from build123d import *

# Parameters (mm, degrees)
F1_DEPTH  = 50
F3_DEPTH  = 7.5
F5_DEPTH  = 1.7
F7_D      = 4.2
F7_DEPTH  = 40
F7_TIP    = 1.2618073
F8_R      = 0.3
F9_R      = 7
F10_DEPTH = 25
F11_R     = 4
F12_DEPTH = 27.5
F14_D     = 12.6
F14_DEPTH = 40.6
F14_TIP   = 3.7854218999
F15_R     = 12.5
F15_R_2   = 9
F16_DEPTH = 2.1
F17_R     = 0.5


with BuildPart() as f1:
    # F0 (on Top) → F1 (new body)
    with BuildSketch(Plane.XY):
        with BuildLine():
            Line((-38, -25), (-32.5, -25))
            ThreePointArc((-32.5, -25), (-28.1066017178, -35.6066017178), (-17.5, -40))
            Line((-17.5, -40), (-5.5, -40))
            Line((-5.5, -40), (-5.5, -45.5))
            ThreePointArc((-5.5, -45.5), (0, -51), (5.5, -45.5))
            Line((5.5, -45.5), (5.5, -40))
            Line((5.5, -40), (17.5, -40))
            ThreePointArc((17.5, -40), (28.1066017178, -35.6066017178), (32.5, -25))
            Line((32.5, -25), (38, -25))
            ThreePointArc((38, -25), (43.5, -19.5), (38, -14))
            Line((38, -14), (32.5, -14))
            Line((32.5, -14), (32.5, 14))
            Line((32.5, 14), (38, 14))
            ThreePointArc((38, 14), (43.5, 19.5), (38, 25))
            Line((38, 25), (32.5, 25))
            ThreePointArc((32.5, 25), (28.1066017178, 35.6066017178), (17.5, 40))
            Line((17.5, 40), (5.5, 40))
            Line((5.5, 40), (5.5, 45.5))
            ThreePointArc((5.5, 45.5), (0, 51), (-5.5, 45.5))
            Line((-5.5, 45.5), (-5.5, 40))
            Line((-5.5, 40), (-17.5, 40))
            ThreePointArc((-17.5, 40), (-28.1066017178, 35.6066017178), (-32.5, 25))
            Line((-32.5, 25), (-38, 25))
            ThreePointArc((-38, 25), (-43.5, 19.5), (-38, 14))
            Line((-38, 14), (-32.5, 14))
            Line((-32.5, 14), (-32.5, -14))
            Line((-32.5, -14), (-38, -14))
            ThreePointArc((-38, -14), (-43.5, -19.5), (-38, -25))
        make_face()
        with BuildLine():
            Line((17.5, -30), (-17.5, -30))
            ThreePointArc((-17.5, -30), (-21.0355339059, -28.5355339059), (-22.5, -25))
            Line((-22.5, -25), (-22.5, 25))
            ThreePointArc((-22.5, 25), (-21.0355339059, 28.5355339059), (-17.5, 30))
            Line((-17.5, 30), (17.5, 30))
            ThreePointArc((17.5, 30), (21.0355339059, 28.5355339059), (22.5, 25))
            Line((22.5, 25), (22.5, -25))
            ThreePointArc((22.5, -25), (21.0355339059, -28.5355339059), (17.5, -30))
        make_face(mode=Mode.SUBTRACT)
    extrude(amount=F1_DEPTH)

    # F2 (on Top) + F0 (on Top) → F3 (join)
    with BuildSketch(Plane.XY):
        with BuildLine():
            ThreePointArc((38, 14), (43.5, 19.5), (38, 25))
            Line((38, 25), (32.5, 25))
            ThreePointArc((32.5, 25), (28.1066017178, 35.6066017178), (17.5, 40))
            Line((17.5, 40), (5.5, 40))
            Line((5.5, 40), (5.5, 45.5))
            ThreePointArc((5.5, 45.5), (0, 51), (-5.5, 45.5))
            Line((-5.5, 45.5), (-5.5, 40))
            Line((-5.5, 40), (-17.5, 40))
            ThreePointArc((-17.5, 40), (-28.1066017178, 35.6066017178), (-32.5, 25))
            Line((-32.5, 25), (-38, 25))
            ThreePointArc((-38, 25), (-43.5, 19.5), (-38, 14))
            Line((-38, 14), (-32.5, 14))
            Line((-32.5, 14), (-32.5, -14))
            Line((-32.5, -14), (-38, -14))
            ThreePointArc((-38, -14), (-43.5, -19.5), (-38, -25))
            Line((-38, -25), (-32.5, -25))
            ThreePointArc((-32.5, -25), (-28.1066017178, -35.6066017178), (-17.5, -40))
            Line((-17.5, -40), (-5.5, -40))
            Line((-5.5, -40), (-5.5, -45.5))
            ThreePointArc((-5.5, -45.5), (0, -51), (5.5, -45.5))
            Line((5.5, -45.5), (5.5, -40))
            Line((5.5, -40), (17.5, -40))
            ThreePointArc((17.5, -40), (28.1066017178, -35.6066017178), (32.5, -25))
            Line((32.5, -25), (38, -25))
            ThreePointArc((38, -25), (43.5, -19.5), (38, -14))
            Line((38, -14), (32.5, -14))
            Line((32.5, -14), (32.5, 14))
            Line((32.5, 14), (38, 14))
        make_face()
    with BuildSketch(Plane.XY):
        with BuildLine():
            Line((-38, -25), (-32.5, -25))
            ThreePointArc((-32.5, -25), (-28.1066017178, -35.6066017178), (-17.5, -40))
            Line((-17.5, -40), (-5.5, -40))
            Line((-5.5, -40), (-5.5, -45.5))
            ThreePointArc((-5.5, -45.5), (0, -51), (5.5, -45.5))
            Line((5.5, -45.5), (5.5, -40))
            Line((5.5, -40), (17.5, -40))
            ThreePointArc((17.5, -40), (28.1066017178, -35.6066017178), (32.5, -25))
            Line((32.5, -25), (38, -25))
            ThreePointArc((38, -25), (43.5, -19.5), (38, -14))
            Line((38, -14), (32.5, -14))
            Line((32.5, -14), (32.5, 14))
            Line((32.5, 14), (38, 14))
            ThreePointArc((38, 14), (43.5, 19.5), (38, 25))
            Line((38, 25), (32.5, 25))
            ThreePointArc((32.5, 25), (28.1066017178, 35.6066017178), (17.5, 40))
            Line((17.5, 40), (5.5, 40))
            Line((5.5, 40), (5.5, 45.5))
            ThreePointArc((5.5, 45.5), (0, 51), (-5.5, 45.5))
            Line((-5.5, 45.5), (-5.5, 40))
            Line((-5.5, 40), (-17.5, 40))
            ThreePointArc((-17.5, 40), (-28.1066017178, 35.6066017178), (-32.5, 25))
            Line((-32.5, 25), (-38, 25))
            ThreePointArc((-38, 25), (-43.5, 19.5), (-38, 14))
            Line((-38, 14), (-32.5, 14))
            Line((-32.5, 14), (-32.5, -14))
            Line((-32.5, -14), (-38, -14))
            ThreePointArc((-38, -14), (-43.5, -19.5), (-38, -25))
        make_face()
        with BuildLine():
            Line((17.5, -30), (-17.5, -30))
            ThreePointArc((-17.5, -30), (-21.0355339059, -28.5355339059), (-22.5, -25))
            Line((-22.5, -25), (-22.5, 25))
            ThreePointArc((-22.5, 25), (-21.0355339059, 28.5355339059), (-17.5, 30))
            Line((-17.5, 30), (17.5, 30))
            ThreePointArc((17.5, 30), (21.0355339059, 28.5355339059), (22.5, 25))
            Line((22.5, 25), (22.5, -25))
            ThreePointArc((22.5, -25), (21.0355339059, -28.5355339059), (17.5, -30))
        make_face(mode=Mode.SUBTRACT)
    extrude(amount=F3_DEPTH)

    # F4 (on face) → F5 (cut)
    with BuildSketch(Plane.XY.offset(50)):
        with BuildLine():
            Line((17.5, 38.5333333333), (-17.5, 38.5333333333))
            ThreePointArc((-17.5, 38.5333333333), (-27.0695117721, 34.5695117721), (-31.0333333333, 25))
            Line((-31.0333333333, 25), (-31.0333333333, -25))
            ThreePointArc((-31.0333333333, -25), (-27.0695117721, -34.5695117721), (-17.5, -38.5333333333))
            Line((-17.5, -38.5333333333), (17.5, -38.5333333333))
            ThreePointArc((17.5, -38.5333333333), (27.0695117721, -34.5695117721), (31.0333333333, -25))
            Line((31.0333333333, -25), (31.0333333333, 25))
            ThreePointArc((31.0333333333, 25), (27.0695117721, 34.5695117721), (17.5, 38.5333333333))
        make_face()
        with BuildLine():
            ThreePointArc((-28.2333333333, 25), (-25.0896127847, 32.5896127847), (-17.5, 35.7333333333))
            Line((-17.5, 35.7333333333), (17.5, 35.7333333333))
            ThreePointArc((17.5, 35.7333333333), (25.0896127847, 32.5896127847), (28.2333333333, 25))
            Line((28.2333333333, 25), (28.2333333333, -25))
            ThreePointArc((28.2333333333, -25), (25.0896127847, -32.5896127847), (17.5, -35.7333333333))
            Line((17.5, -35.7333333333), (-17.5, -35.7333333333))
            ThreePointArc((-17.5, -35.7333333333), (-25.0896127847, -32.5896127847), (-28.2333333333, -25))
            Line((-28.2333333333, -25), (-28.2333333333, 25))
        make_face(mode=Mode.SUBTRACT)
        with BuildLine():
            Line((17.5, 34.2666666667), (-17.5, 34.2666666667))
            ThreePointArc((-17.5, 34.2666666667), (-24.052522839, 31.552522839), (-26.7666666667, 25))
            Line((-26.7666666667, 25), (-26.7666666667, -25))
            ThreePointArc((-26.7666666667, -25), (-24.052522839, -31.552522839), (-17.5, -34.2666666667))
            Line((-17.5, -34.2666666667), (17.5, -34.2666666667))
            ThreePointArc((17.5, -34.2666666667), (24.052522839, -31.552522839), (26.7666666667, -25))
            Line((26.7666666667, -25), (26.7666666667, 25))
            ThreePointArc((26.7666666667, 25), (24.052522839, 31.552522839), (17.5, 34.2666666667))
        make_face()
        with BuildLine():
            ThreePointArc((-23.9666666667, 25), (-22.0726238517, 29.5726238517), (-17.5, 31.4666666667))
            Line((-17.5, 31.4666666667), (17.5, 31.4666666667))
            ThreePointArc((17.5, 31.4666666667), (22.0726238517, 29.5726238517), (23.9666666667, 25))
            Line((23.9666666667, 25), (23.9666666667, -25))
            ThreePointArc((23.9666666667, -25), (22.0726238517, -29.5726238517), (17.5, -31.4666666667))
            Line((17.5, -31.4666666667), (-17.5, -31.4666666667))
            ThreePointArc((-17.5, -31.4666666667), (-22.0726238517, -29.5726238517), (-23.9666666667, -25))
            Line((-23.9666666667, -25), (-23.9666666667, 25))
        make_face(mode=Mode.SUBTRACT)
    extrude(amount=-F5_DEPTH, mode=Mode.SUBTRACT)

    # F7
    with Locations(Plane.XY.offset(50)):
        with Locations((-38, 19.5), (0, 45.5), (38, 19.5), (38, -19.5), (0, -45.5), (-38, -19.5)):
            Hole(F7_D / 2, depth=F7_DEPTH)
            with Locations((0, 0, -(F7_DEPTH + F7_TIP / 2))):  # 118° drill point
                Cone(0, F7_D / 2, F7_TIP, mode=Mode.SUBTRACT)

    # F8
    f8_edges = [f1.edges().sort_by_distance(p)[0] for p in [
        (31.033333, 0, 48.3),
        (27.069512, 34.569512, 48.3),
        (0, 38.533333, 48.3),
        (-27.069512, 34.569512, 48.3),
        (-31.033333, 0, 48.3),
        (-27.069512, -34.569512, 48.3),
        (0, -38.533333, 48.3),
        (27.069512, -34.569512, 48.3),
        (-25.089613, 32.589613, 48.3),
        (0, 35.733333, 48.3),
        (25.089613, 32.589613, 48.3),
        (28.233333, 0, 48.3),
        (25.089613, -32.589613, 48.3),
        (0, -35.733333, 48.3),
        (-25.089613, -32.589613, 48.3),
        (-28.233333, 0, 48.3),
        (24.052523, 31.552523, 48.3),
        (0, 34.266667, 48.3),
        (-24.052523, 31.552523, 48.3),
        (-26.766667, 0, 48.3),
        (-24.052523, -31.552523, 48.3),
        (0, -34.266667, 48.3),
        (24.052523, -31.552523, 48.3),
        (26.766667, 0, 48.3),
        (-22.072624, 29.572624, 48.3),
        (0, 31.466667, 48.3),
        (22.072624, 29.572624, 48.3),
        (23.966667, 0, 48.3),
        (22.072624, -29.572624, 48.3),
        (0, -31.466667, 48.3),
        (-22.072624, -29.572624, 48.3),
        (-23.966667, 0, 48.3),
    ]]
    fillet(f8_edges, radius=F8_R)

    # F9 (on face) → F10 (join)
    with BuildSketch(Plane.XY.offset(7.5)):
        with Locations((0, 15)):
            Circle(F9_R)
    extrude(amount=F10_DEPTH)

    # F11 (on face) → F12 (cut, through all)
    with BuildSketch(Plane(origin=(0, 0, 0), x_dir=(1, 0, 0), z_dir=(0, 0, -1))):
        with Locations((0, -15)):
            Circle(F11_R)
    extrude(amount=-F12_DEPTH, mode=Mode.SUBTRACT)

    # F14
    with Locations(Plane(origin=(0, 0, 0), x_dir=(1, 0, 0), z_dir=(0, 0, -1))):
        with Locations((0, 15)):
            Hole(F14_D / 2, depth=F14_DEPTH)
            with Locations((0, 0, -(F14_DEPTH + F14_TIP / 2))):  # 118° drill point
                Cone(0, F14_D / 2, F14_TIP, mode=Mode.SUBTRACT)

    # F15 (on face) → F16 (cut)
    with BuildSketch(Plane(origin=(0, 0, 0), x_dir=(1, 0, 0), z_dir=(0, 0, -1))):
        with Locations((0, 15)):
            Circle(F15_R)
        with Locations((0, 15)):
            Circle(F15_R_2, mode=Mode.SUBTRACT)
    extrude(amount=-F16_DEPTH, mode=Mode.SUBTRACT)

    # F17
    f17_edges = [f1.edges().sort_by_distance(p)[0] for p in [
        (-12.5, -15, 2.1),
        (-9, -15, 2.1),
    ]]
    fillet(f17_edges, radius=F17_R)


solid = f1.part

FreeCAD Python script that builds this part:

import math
import FreeCAD as App
import Part
import Sketcher

V = App.Vector


def edges_at(feature, points):
    """Names of the edges that pass closest to the given points."""
    edges = feature.Shape.Edges
    near = lambda p: min(range(len(edges)), key=lambda i: edges[i].distToShape(Part.Vertex(*p))[0])
    return sorted({f"Edge{near(p) + 1}" for p in points})

doc = App.newDocument("Part")
body = doc.addObject("PartDesign::Body", "Body")

# Sketch on XY plane
sketch1 = body.newObject("Sketcher::SketchObject", "Sketch")
sketch1.AttachmentSupport = (doc.getObject("XY_Plane"), [""])
sketch1.MapMode = "FlatFace"
sketch1.addGeometry(Part.LineSegment(V(-38, -25, 0), V(-32, -25, 0)), False)
sketch1.addGeometry(Part.ArcOfCircle(Part.Circle(V(-18, -25, 0), V(0, 0, 1), 15), math.radians(180), math.radians(270)), False)
sketch1.addGeometry(Part.LineSegment(V(-18, -40, 0), V(-6, -40, 0)), False)
sketch1.addGeometry(Part.LineSegment(V(-6, -40, 0), V(-6, -46, 0)), False)
sketch1.addGeometry(Part.ArcOfCircle(Part.Circle(V(0, -46, 0), V(0, 0, 1), 6), math.radians(180), math.radians(360)), False)
sketch1.addGeometry(Part.LineSegment(V(6, -46, 0), V(6, -40, 0)), False)
sketch1.addGeometry(Part.LineSegment(V(6, -40, 0), V(18, -40, 0)), False)
sketch1.addGeometry(Part.ArcOfCircle(Part.Circle(V(18, -25, 0), V(0, 0, 1), 15), math.radians(-90), math.radians(0)), False)
sketch1.addGeometry(Part.LineSegment(V(32, -25, 0), V(38, -25, 0)), False)
sketch1.addGeometry(Part.ArcOfCircle(Part.Circle(V(38, -20, 0), V(0, 0, 1), 6), math.radians(-90), math.radians(90)), False)
sketch1.addGeometry(Part.LineSegment(V(38, -14, 0), V(32, -14, 0)), False)
sketch1.addGeometry(Part.LineSegment(V(32, -14, 0), V(32, 14, 0)), False)
sketch1.addGeometry(Part.LineSegment(V(32, 14, 0), V(38, 14, 0)), False)
sketch1.addGeometry(Part.ArcOfCircle(Part.Circle(V(38, 20, 0), V(0, 0, 1), 6), math.radians(-90), math.radians(90)), False)
sketch1.addGeometry(Part.LineSegment(V(38, 25, 0), V(32, 25, 0)), False)
sketch1.addGeometry(Part.ArcOfCircle(Part.Circle(V(18, 25, 0), V(0, 0, 1), 15), math.radians(0), math.radians(90)), False)
sketch1.addGeometry(Part.LineSegment(V(18, 40, 0), V(6, 40, 0)), False)
sketch1.addGeometry(Part.LineSegment(V(6, 40, 0), V(6, 46, 0)), False)
sketch1.addGeometry(Part.ArcOfCircle(Part.Circle(V(0, 46, 0), V(0, 0, 1), 6), math.radians(0), math.radians(180)), False)
sketch1.addGeometry(Part.LineSegment(V(-6, 46, 0), V(-6, 40, 0)), False)
sketch1.addGeometry(Part.LineSegment(V(-6, 40, 0), V(-18, 40, 0)), False)
sketch1.addGeometry(Part.ArcOfCircle(Part.Circle(V(-18, 25, 0), V(0, 0, 1), 15), math.radians(90), math.radians(180)), False)
sketch1.addGeometry(Part.LineSegment(V(-32, 25, 0), V(-38, 25, 0)), False)
sketch1.addGeometry(Part.ArcOfCircle(Part.Circle(V(-38, 20, 0), V(0, 0, 1), 6), math.radians(90), math.radians(270)), False)
sketch1.addGeometry(Part.LineSegment(V(-38, 14, 0), V(-32, 14, 0)), False)
sketch1.addGeometry(Part.LineSegment(V(-32, 14, 0), V(-32, -14, 0)), False)
sketch1.addGeometry(Part.LineSegment(V(-32, -14, 0), V(-38, -14, 0)), False)
sketch1.addGeometry(Part.ArcOfCircle(Part.Circle(V(-38, -20, 0), V(0, 0, 1), 6), math.radians(90), math.radians(270)), False)
sketch1.addGeometry(Part.ArcOfCircle(Part.Circle(V(18, -25, 0), V(0, 0, 1), 5), math.radians(-90), math.radians(0)), False)
sketch1.addGeometry(Part.LineSegment(V(18, -30, 0), V(-18, -30, 0)), False)
sketch1.addGeometry(Part.ArcOfCircle(Part.Circle(V(-18, -25, 0), V(0, 0, 1), 5), math.radians(180), math.radians(270)), False)
sketch1.addGeometry(Part.LineSegment(V(-22, -25, 0), V(-22, 25, 0)), False)
sketch1.addGeometry(Part.ArcOfCircle(Part.Circle(V(-18, 25, 0), V(0, 0, 1), 5), math.radians(90), math.radians(180)), False)
sketch1.addGeometry(Part.LineSegment(V(-18, 30, 0), V(18, 30, 0)), False)
sketch1.addGeometry(Part.ArcOfCircle(Part.Circle(V(18, 25, 0), V(0, 0, 1), 5), math.radians(0), math.radians(90)), False)
sketch1.addGeometry(Part.LineSegment(V(22, 25, 0), V(22, -25, 0)), False)
sketch1.addConstraint(Sketcher.Constraint("Coincident", 0, 2, 1, 1))
sketch1.addConstraint(Sketcher.Constraint("Tangent", 1, 2, 2, 1))
sketch1.addConstraint(Sketcher.Constraint("Coincident", 2, 2, 3, 1))
sketch1.addConstraint(Sketcher.Constraint("Tangent", 3, 2, 4, 1))
sketch1.addConstraint(Sketcher.Constraint("Tangent", 4, 2, 5, 1))
sketch1.addConstraint(Sketcher.Constraint("Coincident", 5, 2, 6, 1))
sketch1.addConstraint(Sketcher.Constraint("Tangent", 6, 2, 7, 1))
sketch1.addConstraint(Sketcher.Constraint("Coincident", 7, 2, 8, 1))
sketch1.addConstraint(Sketcher.Constraint("Tangent", 8, 2, 9, 1))
sketch1.addConstraint(Sketcher.Constraint("Tangent", 9, 2, 10, 1))
sketch1.addConstraint(Sketcher.Constraint("Coincident", 10, 2, 11, 1))
sketch1.addConstraint(Sketcher.Constraint("Coincident", 11, 2, 12, 1))
sketch1.addConstraint(Sketcher.Constraint("Tangent", 12, 2, 13, 1))
sketch1.addConstraint(Sketcher.Constraint("Tangent", 13, 2, 14, 1))
sketch1.addConstraint(Sketcher.Constraint("Coincident", 14, 2, 15, 1))
sketch1.addConstraint(Sketcher.Constraint("Tangent", 15, 2, 16, 1))
sketch1.addConstraint(Sketcher.Constraint("Coincident", 16, 2, 17, 1))
sketch1.addConstraint(Sketcher.Constraint("Tangent", 17, 2, 18, 1))
sketch1.addConstraint(Sketcher.Constraint("Tangent", 18, 2, 19, 1))
sketch1.addConstraint(Sketcher.Constraint("Coincident", 19, 2, 20, 1))
sketch1.addConstraint(Sketcher.Constraint("Tangent", 20, 2, 21, 1))
sketch1.addConstraint(Sketcher.Constraint("Coincident", 21, 2, 22, 1))
sketch1.addConstraint(Sketcher.Constraint("Tangent", 22, 2, 23, 1))
sketch1.addConstraint(Sketcher.Constraint("Tangent", 23, 2, 24, 1))
sketch1.addConstraint(Sketcher.Constraint("Coincident", 24, 2, 25, 1))
sketch1.addConstraint(Sketcher.Constraint("Coincident", 25, 2, 26, 1))
sketch1.addConstraint(Sketcher.Constraint("Tangent", 26, 2, 27, 1))
sketch1.addConstraint(Sketcher.Constraint("Tangent", 27, 2, 0, 1))
sketch1.addConstraint(Sketcher.Constraint("Tangent", 28, 1, 29, 1))
sketch1.addConstraint(Sketcher.Constraint("Tangent", 29, 2, 30, 2))
sketch1.addConstraint(Sketcher.Constraint("Tangent", 30, 1, 31, 1))
sketch1.addConstraint(Sketcher.Constraint("Tangent", 31, 2, 32, 2))
sketch1.addConstraint(Sketcher.Constraint("Tangent", 32, 1, 33, 1))
sketch1.addConstraint(Sketcher.Constraint("Tangent", 33, 2, 34, 2))
sketch1.addConstraint(Sketcher.Constraint("Tangent", 34, 1, 35, 1))
sketch1.addConstraint(Sketcher.Constraint("Tangent", 35, 2, 28, 2))
sketch1.addConstraint(Sketcher.Constraint("Horizontal", 0))
sketch1.addConstraint(Sketcher.Constraint("Horizontal", 2))
sketch1.addConstraint(Sketcher.Constraint("Vertical", 3))
sketch1.addConstraint(Sketcher.Constraint("Vertical", 5))
sketch1.addConstraint(Sketcher.Constraint("Horizontal", 6))
sketch1.addConstraint(Sketcher.Constraint("Horizontal", 8))
sketch1.addConstraint(Sketcher.Constraint("Horizontal", 10))
sketch1.addConstraint(Sketcher.Constraint("Vertical", 11))
sketch1.addConstraint(Sketcher.Constraint("Horizontal", 12))
sketch1.addConstraint(Sketcher.Constraint("Horizontal", 14))
sketch1.addConstraint(Sketcher.Constraint("Horizontal", 16))
sketch1.addConstraint(Sketcher.Constraint("Vertical", 17))
sketch1.addConstraint(Sketcher.Constraint("Vertical", 19))
sketch1.addConstraint(Sketcher.Constraint("Horizontal", 20))
sketch1.addConstraint(Sketcher.Constraint("Horizontal", 22))
sketch1.addConstraint(Sketcher.Constraint("Horizontal", 24))
sketch1.addConstraint(Sketcher.Constraint("Vertical", 25))
sketch1.addConstraint(Sketcher.Constraint("Horizontal", 26))
sketch1.addConstraint(Sketcher.Constraint("Horizontal", 29))
sketch1.addConstraint(Sketcher.Constraint("Vertical", 31))
sketch1.addConstraint(Sketcher.Constraint("Horizontal", 33))
sketch1.addConstraint(Sketcher.Constraint("Vertical", 35))
sketch1.addConstraint(Sketcher.Constraint("Coincident", 28, 3, 7, 3))
sketch1.addConstraint(Sketcher.Constraint("Coincident", 30, 3, 1, 3))
sketch1.addConstraint(Sketcher.Constraint("Coincident", 32, 3, 21, 3))
sketch1.addConstraint(Sketcher.Constraint("Coincident", 34, 3, 15, 3))
sketch1.addConstraint(Sketcher.Constraint("Equal", 1, 7))
sketch1.addConstraint(Sketcher.Constraint("Equal", 4, 9))
sketch1.addConstraint(Sketcher.Constraint("Equal", 9, 13))
sketch1.addConstraint(Sketcher.Constraint("Equal", 7, 15))
sketch1.addConstraint(Sketcher.Constraint("Equal", 13, 18))
sketch1.addConstraint(Sketcher.Constraint("Equal", 15, 21))
sketch1.addConstraint(Sketcher.Constraint("Equal", 18, 23))
sketch1.addConstraint(Sketcher.Constraint("Equal", 23, 27))
sketch1.addConstraint(Sketcher.Constraint("Equal", 28, 30))
sketch1.addConstraint(Sketcher.Constraint("Equal", 30, 32))
sketch1.addConstraint(Sketcher.Constraint("Equal", 32, 34))
sketch1.addConstraint(Sketcher.Constraint("Symmetric", 1, 3, 15, 3, -1, 1))
sketch1.addConstraint(Sketcher.Constraint("Symmetric", 4, 3, 18, 3, -1, 1))
sketch1.addConstraint(Sketcher.Constraint("Symmetric", 9, 3, 23, 3, -1, 1))
sketch1.addConstraint(Sketcher.Constraint("Symmetric", 13, 3, 27, 3, -1, 1))
sketch1.addConstraint(Sketcher.Constraint("Symmetric", 13, 3, 23, 3, -2))
sketch1.addConstraint(Sketcher.Constraint("PointOnObject", 4, 3, -2))
sketch1.addConstraint(Sketcher.Constraint("Horizontal", 30, 3, 0, 2))
sketch1.addConstraint(Sketcher.Constraint("Vertical", 7, 2, 10, 2))
sketch1.addConstraint(Sketcher.Constraint("Vertical", 21, 2, 24, 2))
sketch1.addConstraint(Sketcher.Constraint("Equal", 26, 3))
sketch1.addConstraint(Sketcher.Constraint("Radius", 1, 15.0))
sketch1.addConstraint(Sketcher.Constraint("Radius", 28, 5.0))
sketch1.addConstraint(Sketcher.Constraint("Radius", 4, 5.5))
sketch1.addConstraint(Sketcher.Constraint("DistanceX", 2, 1, 2, 2, 12.0))
sketch1.addConstraint(Sketcher.Constraint("DistanceY", 11, 1, 11, 2, 28.0))
sketch1.addConstraint(Sketcher.Constraint("DistanceX", 0, 1, 0, 2, 5.5))
pad1 = body.newObject("PartDesign::Pad", "Pad")
pad1.Profile = sketch1
pad1.Length = 50

# Sketch on XY plane
sketch2 = body.newObject("Sketcher::SketchObject", "Sketch001")
sketch2.AttachmentSupport = (doc.getObject("XY_Plane"), [""])
sketch2.MapMode = "FlatFace"
sketch2.addGeometry(Part.ArcOfCircle(Part.Circle(V(38, 20, 0), V(0, 0, 1), 6), math.radians(-90), math.radians(90)), False)
sketch2.addGeometry(Part.LineSegment(V(38, 25, 0), V(32, 25, 0)), False)
sketch2.addGeometry(Part.ArcOfCircle(Part.Circle(V(18, 25, 0), V(0, 0, 1), 15), math.radians(0), math.radians(90)), False)
sketch2.addGeometry(Part.LineSegment(V(18, 40, 0), V(6, 40, 0)), False)
sketch2.addGeometry(Part.LineSegment(V(6, 40, 0), V(6, 46, 0)), False)
sketch2.addGeometry(Part.ArcOfCircle(Part.Circle(V(0, 46, 0), V(0, 0, 1), 6), math.radians(0), math.radians(180)), False)
sketch2.addGeometry(Part.LineSegment(V(-6, 46, 0), V(-6, 40, 0)), False)
sketch2.addGeometry(Part.LineSegment(V(-6, 40, 0), V(-18, 40, 0)), False)
sketch2.addGeometry(Part.ArcOfCircle(Part.Circle(V(-18, 25, 0), V(0, 0, 1), 15), math.radians(90), math.radians(180)), False)
sketch2.addGeometry(Part.LineSegment(V(-32, 25, 0), V(-38, 25, 0)), False)
sketch2.addGeometry(Part.ArcOfCircle(Part.Circle(V(-38, 20, 0), V(0, 0, 1), 6), math.radians(90), math.radians(270)), False)
sketch2.addGeometry(Part.LineSegment(V(-38, 14, 0), V(-32, 14, 0)), False)
sketch2.addGeometry(Part.LineSegment(V(-32, 14, 0), V(-32, -14, 0)), False)
sketch2.addGeometry(Part.LineSegment(V(-32, -14, 0), V(-38, -14, 0)), False)
sketch2.addGeometry(Part.ArcOfCircle(Part.Circle(V(-38, -20, 0), V(0, 0, 1), 6), math.radians(90), math.radians(270)), False)
sketch2.addGeometry(Part.LineSegment(V(-38, -25, 0), V(-32, -25, 0)), False)
sketch2.addGeometry(Part.ArcOfCircle(Part.Circle(V(-18, -25, 0), V(0, 0, 1), 15), math.radians(180), math.radians(270)), False)
sketch2.addGeometry(Part.LineSegment(V(-18, -40, 0), V(-6, -40, 0)), False)
sketch2.addGeometry(Part.LineSegment(V(-6, -40, 0), V(-6, -46, 0)), False)
sketch2.addGeometry(Part.ArcOfCircle(Part.Circle(V(0, -46, 0), V(0, 0, 1), 6), math.radians(180), math.radians(360)), False)
sketch2.addGeometry(Part.LineSegment(V(6, -46, 0), V(6, -40, 0)), False)
sketch2.addGeometry(Part.LineSegment(V(6, -40, 0), V(18, -40, 0)), False)
sketch2.addGeometry(Part.ArcOfCircle(Part.Circle(V(18, -25, 0), V(0, 0, 1), 15), math.radians(-90), math.radians(0)), False)
sketch2.addGeometry(Part.LineSegment(V(32, -25, 0), V(38, -25, 0)), False)
sketch2.addGeometry(Part.ArcOfCircle(Part.Circle(V(38, -20, 0), V(0, 0, 1), 6), math.radians(-90), math.radians(90)), False)
sketch2.addGeometry(Part.LineSegment(V(38, -14, 0), V(32, -14, 0)), False)
sketch2.addGeometry(Part.LineSegment(V(32, -14, 0), V(32, 14, 0)), False)
sketch2.addGeometry(Part.LineSegment(V(32, 14, 0), V(38, 14, 0)), False)
sketch2.addConstraint(Sketcher.Constraint("Tangent", 0, 2, 1, 1))
sketch2.addConstraint(Sketcher.Constraint("Coincident", 1, 2, 2, 1))
sketch2.addConstraint(Sketcher.Constraint("Tangent", 2, 2, 3, 1))
sketch2.addConstraint(Sketcher.Constraint("Coincident", 3, 2, 4, 1))
sketch2.addConstraint(Sketcher.Constraint("Tangent", 4, 2, 5, 1))
sketch2.addConstraint(Sketcher.Constraint("Tangent", 5, 2, 6, 1))
sketch2.addConstraint(Sketcher.Constraint("Coincident", 6, 2, 7, 1))
sketch2.addConstraint(Sketcher.Constraint("Tangent", 7, 2, 8, 1))
sketch2.addConstraint(Sketcher.Constraint("Coincident", 8, 2, 9, 1))
sketch2.addConstraint(Sketcher.Constraint("Tangent", 9, 2, 10, 1))
sketch2.addConstraint(Sketcher.Constraint("Tangent", 10, 2, 11, 1))
sketch2.addConstraint(Sketcher.Constraint("Coincident", 11, 2, 12, 1))
sketch2.addConstraint(Sketcher.Constraint("Coincident", 12, 2, 13, 1))
sketch2.addConstraint(Sketcher.Constraint("Tangent", 13, 2, 14, 1))
sketch2.addConstraint(Sketcher.Constraint("Tangent", 14, 2, 15, 1))
sketch2.addConstraint(Sketcher.Constraint("Coincident", 15, 2, 16, 1))
sketch2.addConstraint(Sketcher.Constraint("Tangent", 16, 2, 17, 1))
sketch2.addConstraint(Sketcher.Constraint("Coincident", 17, 2, 18, 1))
sketch2.addConstraint(Sketcher.Constraint("Tangent", 18, 2, 19, 1))
sketch2.addConstraint(Sketcher.Constraint("Tangent", 19, 2, 20, 1))
sketch2.addConstraint(Sketcher.Constraint("Coincident", 20, 2, 21, 1))
sketch2.addConstraint(Sketcher.Constraint("Tangent", 21, 2, 22, 1))
sketch2.addConstraint(Sketcher.Constraint("Coincident", 22, 2, 23, 1))
sketch2.addConstraint(Sketcher.Constraint("Tangent", 23, 2, 24, 1))
sketch2.addConstraint(Sketcher.Constraint("Tangent", 24, 2, 25, 1))
sketch2.addConstraint(Sketcher.Constraint("Coincident", 25, 2, 26, 1))
sketch2.addConstraint(Sketcher.Constraint("Coincident", 26, 2, 27, 1))
sketch2.addConstraint(Sketcher.Constraint("Tangent", 27, 2, 0, 1))
sketch2.addConstraint(Sketcher.Constraint("Horizontal", 1))
sketch2.addConstraint(Sketcher.Constraint("Horizontal", 3))
sketch2.addConstraint(Sketcher.Constraint("Vertical", 4))
sketch2.addConstraint(Sketcher.Constraint("Vertical", 6))
sketch2.addConstraint(Sketcher.Constraint("Horizontal", 7))
sketch2.addConstraint(Sketcher.Constraint("Horizontal", 9))
sketch2.addConstraint(Sketcher.Constraint("Horizontal", 11))
sketch2.addConstraint(Sketcher.Constraint("Vertical", 12))
sketch2.addConstraint(Sketcher.Constraint("Horizontal", 13))
sketch2.addConstraint(Sketcher.Constraint("Horizontal", 15))
sketch2.addConstraint(Sketcher.Constraint("Horizontal", 17))
sketch2.addConstraint(Sketcher.Constraint("Vertical", 18))
sketch2.addConstraint(Sketcher.Constraint("Vertical", 20))
sketch2.addConstraint(Sketcher.Constraint("Horizontal", 21))
sketch2.addConstraint(Sketcher.Constraint("Horizontal", 23))
sketch2.addConstraint(Sketcher.Constraint("Horizontal", 25))
sketch2.addConstraint(Sketcher.Constraint("Vertical", 26))
sketch2.addConstraint(Sketcher.Constraint("Horizontal", 27))
sketch2.addConstraint(Sketcher.Constraint("Equal", 0, 5))
sketch2.addConstraint(Sketcher.Constraint("Equal", 2, 8))
sketch2.addConstraint(Sketcher.Constraint("Equal", 5, 10))
sketch2.addConstraint(Sketcher.Constraint("Equal", 10, 14))
sketch2.addConstraint(Sketcher.Constraint("Equal", 8, 16))
sketch2.addConstraint(Sketcher.Constraint("Equal", 14, 19))
sketch2.addConstraint(Sketcher.Constraint("Equal", 16, 22))
sketch2.addConstraint(Sketcher.Constraint("Equal", 19, 24))
sketch2.addConstraint(Sketcher.Constraint("Symmetric", 0, 3, 14, 3, -1, 1))
sketch2.addConstraint(Sketcher.Constraint("Symmetric", 2, 3, 16, 3, -1, 1))
sketch2.addConstraint(Sketcher.Constraint("Symmetric", 5, 3, 19, 3, -1, 1))
sketch2.addConstraint(Sketcher.Constraint("Symmetric", 8, 3, 22, 3, -1, 1))
sketch2.addConstraint(Sketcher.Constraint("Symmetric", 10, 3, 24, 3, -1, 1))
sketch2.addConstraint(Sketcher.Constraint("Symmetric", 2, 3, 8, 3, -2))
sketch2.addConstraint(Sketcher.Constraint("Symmetric", 0, 3, 10, 3, -2))
sketch2.addConstraint(Sketcher.Constraint("PointOnObject", 5, 3, -2))
sketch2.addConstraint(Sketcher.Constraint("Horizontal", 8, 3, 0, 2))
sketch2.addConstraint(Sketcher.Constraint("Vertical", 8, 2, 11, 2))
sketch2.addConstraint(Sketcher.Constraint("Vertical", 22, 2, 25, 2))
sketch2.addConstraint(Sketcher.Constraint("Equal", 27, 4))
sketch2.addConstraint(Sketcher.Constraint("Radius", 2, 15.0))
sketch2.addConstraint(Sketcher.Constraint("Radius", 0, 5.5))
sketch2.addConstraint(Sketcher.Constraint("DistanceX", 3, 2, 3, 1, 12.0))
sketch2.addConstraint(Sketcher.Constraint("DistanceY", 12, 2, 12, 1, 28.0))
sketch2.addConstraint(Sketcher.Constraint("DistanceX", 1, 2, 1, 1, 5.5))
pad2 = body.newObject("PartDesign::Pad", "Pad001")
pad2.Profile = sketch2
pad2.Length = 7.5

# Sketch on XY plane
sketch3 = body.newObject("Sketcher::SketchObject", "Sketch002")
sketch3.AttachmentSupport = (doc.getObject("XY_Plane"), [""])
sketch3.MapMode = "FlatFace"
sketch3.AttachmentOffset = App.Placement(V(0, 0, 50), App.Rotation())
sketch3.addGeometry(Part.LineSegment(V(18, 39, 0), V(-18, 39, 0)), False)
sketch3.addGeometry(Part.ArcOfCircle(Part.Circle(V(-18, 25, 0), V(0, 0, 1), 14), math.radians(90), math.radians(180)), False)
sketch3.addGeometry(Part.LineSegment(V(-31, 25, 0), V(-31, -25, 0)), False)
sketch3.addGeometry(Part.ArcOfCircle(Part.Circle(V(-18, -25, 0), V(0, 0, 1), 14), math.radians(180), math.radians(270)), False)
sketch3.addGeometry(Part.LineSegment(V(-18, -39, 0), V(18, -39, 0)), False)
sketch3.addGeometry(Part.ArcOfCircle(Part.Circle(V(18, -25, 0), V(0, 0, 1), 14), math.radians(-90), math.radians(0)), False)
sketch3.addGeometry(Part.LineSegment(V(31, -25, 0), V(31, 25, 0)), False)
sketch3.addGeometry(Part.ArcOfCircle(Part.Circle(V(18, 25, 0), V(0, 0, 1), 14), math.radians(0), math.radians(90)), False)
sketch3.addGeometry(Part.LineSegment(V(-28, -25, 0), V(-28, 25, 0)), False)
sketch3.addGeometry(Part.ArcOfCircle(Part.Circle(V(-18, 25, 0), V(0, 0, 1), 11), math.radians(90), math.radians(180)), False)
sketch3.addGeometry(Part.LineSegment(V(-18, 36, 0), V(18, 36, 0)), False)
sketch3.addGeometry(Part.ArcOfCircle(Part.Circle(V(18, 25, 0), V(0, 0, 1), 11), math.radians(0), math.radians(90)), False)
sketch3.addGeometry(Part.LineSegment(V(28, 25, 0), V(28, -25, 0)), False)
sketch3.addGeometry(Part.ArcOfCircle(Part.Circle(V(18, -25, 0), V(0, 0, 1), 11), math.radians(-90), math.radians(0)), False)
sketch3.addGeometry(Part.LineSegment(V(18, -36, 0), V(-18, -36, 0)), False)
sketch3.addGeometry(Part.ArcOfCircle(Part.Circle(V(-18, -25, 0), V(0, 0, 1), 11), math.radians(180), math.radians(270)), False)
sketch3.addGeometry(Part.LineSegment(V(18, 34, 0), V(-18, 34, 0)), False)
sketch3.addGeometry(Part.ArcOfCircle(Part.Circle(V(-18, 25, 0), V(0, 0, 1), 9), math.radians(90), math.radians(180)), False)
sketch3.addGeometry(Part.LineSegment(V(-27, 25, 0), V(-27, -25, 0)), False)
sketch3.addGeometry(Part.ArcOfCircle(Part.Circle(V(-18, -25, 0), V(0, 0, 1), 9), math.radians(180), math.radians(270)), False)
sketch3.addGeometry(Part.LineSegment(V(-18, -34, 0), V(18, -34, 0)), False)
sketch3.addGeometry(Part.ArcOfCircle(Part.Circle(V(18, -25, 0), V(0, 0, 1), 9), math.radians(-90), math.radians(0)), False)
sketch3.addGeometry(Part.LineSegment(V(27, -25, 0), V(27, 25, 0)), False)
sketch3.addGeometry(Part.ArcOfCircle(Part.Circle(V(18, 25, 0), V(0, 0, 1), 9), math.radians(0), math.radians(90)), False)
sketch3.addGeometry(Part.LineSegment(V(-24, -25, 0), V(-24, 25, 0)), False)
sketch3.addGeometry(Part.ArcOfCircle(Part.Circle(V(-18, 25, 0), V(0, 0, 1), 6), math.radians(90), math.radians(180)), False)
sketch3.addGeometry(Part.LineSegment(V(-18, 31, 0), V(18, 31, 0)), False)
sketch3.addGeometry(Part.ArcOfCircle(Part.Circle(V(18, 25, 0), V(0, 0, 1), 6), math.radians(0), math.radians(90)), False)
sketch3.addGeometry(Part.LineSegment(V(24, 25, 0), V(24, -25, 0)), False)
sketch3.addGeometry(Part.ArcOfCircle(Part.Circle(V(18, -25, 0), V(0, 0, 1), 6), math.radians(-90), math.radians(0)), False)
sketch3.addGeometry(Part.LineSegment(V(18, -31, 0), V(-18, -31, 0)), False)
sketch3.addGeometry(Part.ArcOfCircle(Part.Circle(V(-18, -25, 0), V(0, 0, 1), 6), math.radians(180), math.radians(270)), False)
sketch3.addConstraint(Sketcher.Constraint("Tangent", 0, 2, 1, 1))
sketch3.addConstraint(Sketcher.Constraint("Tangent", 1, 2, 2, 1))
sketch3.addConstraint(Sketcher.Constraint("Tangent", 2, 2, 3, 1))
sketch3.addConstraint(Sketcher.Constraint("Tangent", 3, 2, 4, 1))
sketch3.addConstraint(Sketcher.Constraint("Tangent", 4, 2, 5, 1))
sketch3.addConstraint(Sketcher.Constraint("Tangent", 5, 2, 6, 1))
sketch3.addConstraint(Sketcher.Constraint("Tangent", 6, 2, 7, 1))
sketch3.addConstraint(Sketcher.Constraint("Tangent", 7, 2, 0, 1))
sketch3.addConstraint(Sketcher.Constraint("Tangent", 8, 2, 9, 2))
sketch3.addConstraint(Sketcher.Constraint("Tangent", 9, 1, 10, 1))
sketch3.addConstraint(Sketcher.Constraint("Tangent", 10, 2, 11, 2))
sketch3.addConstraint(Sketcher.Constraint("Tangent", 11, 1, 12, 1))
sketch3.addConstraint(Sketcher.Constraint("Tangent", 12, 2, 13, 2))
sketch3.addConstraint(Sketcher.Constraint("Tangent", 13, 1, 14, 1))
sketch3.addConstraint(Sketcher.Constraint("Tangent", 14, 2, 15, 2))
sketch3.addConstraint(Sketcher.Constraint("Tangent", 15, 1, 8, 1))
sketch3.addConstraint(Sketcher.Constraint("Tangent", 16, 2, 17, 1))
sketch3.addConstraint(Sketcher.Constraint("Tangent", 17, 2, 18, 1))
sketch3.addConstraint(Sketcher.Constraint("Tangent", 18, 2, 19, 1))
sketch3.addConstraint(Sketcher.Constraint("Tangent", 19, 2, 20, 1))
sketch3.addConstraint(Sketcher.Constraint("Tangent", 20, 2, 21, 1))
sketch3.addConstraint(Sketcher.Constraint("Tangent", 21, 2, 22, 1))
sketch3.addConstraint(Sketcher.Constraint("Tangent", 22, 2, 23, 1))
sketch3.addConstraint(Sketcher.Constraint("Tangent", 23, 2, 16, 1))
sketch3.addConstraint(Sketcher.Constraint("Tangent", 24, 2, 25, 2))
sketch3.addConstraint(Sketcher.Constraint("Tangent", 25, 1, 26, 1))
sketch3.addConstraint(Sketcher.Constraint("Tangent", 26, 2, 27, 2))
sketch3.addConstraint(Sketcher.Constraint("Tangent", 27, 1, 28, 1))
sketch3.addConstraint(Sketcher.Constraint("Tangent", 28, 2, 29, 2))
sketch3.addConstraint(Sketcher.Constraint("Tangent", 29, 1, 30, 1))
sketch3.addConstraint(Sketcher.Constraint("Tangent", 30, 2, 31, 2))
sketch3.addConstraint(Sketcher.Constraint("Tangent", 31, 1, 24, 1))
sketch3.addConstraint(Sketcher.Constraint("Horizontal", 0))
sketch3.addConstraint(Sketcher.Constraint("Vertical", 2))
sketch3.addConstraint(Sketcher.Constraint("Horizontal", 4))
sketch3.addConstraint(Sketcher.Constraint("Vertical", 6))
sketch3.addConstraint(Sketcher.Constraint("Vertical", 8))
sketch3.addConstraint(Sketcher.Constraint("Horizontal", 10))
sketch3.addConstraint(Sketcher.Constraint("Vertical", 12))
sketch3.addConstraint(Sketcher.Constraint("Horizontal", 14))
sketch3.addConstraint(Sketcher.Constraint("Horizontal", 16))
sketch3.addConstraint(Sketcher.Constraint("Vertical", 18))
sketch3.addConstraint(Sketcher.Constraint("Horizontal", 20))
sketch3.addConstraint(Sketcher.Constraint("Vertical", 22))
sketch3.addConstraint(Sketcher.Constraint("Vertical", 24))
sketch3.addConstraint(Sketcher.Constraint("Horizontal", 26))
sketch3.addConstraint(Sketcher.Constraint("Vertical", 28))
sketch3.addConstraint(Sketcher.Constraint("Horizontal", 30))
sketch3.addConstraint(Sketcher.Constraint("Coincident", 9, 3, 1, 3))
sketch3.addConstraint(Sketcher.Constraint("Coincident", 11, 3, 7, 3))
sketch3.addConstraint(Sketcher.Constraint("Coincident", 13, 3, 5, 3))
sketch3.addConstraint(Sketcher.Constraint("Coincident", 17, 3, 1, 3))
sketch3.addConstraint(Sketcher.Constraint("Coincident", 19, 3, 3, 3))
sketch3.addConstraint(Sketcher.Constraint("Coincident", 21, 3, 5, 3))
sketch3.addConstraint(Sketcher.Constraint("Coincident", 25, 3, 1, 3))
sketch3.addConstraint(Sketcher.Constraint("Coincident", 27, 3, 7, 3))
sketch3.addConstraint(Sketcher.Constraint("Coincident", 29, 3, 5, 3))
sketch3.addConstraint(Sketcher.Constraint("Equal", 1, 3))
sketch3.addConstraint(Sketcher.Constraint("Equal", 3, 5))
sketch3.addConstraint(Sketcher.Constraint("Equal", 5, 7))
sketch3.addConstraint(Sketcher.Constraint("Equal", 13, 15))
sketch3.addConstraint(Sketcher.Constraint("Equal", 21, 23))
sketch3.addConstraint(Sketcher.Constraint("Equal", 29, 31))
sketch3.addConstraint(Sketcher.Constraint("Symmetric", 1, 3, 5, 3, -1, 1))
sketch3.addConstraint(Sketcher.Constraint("DistanceX", 0, 2, 0, 1, 35.0))
sketch3.addConstraint(Sketcher.Constraint("DistanceY", 2, 2, 2, 1, 50.0))
sketch3.addConstraint(Sketcher.Constraint("DistanceX", 1, 2, 8, 2, 2.8))
sketch3.addConstraint(Sketcher.Constraint("DistanceX", 17, 2, 24, 2, 2.8))
sketch3.addConstraint(Sketcher.Constraint("Radius", 1, 13.533333))
sketch3.addConstraint(Sketcher.Constraint("Radius", 17, 9.266667))
pocket1 = body.newObject("PartDesign::Pocket", "Pocket")
pocket1.Profile = sketch3
pocket1.Length = 1.7

# Sketch on XY plane
sketch4 = body.newObject("Sketcher::SketchObject", "Sketch003")
sketch4.AttachmentSupport = (doc.getObject("XY_Plane"), [""])
sketch4.MapMode = "FlatFace"
sketch4.AttachmentOffset = App.Placement(V(0, 0, 50), App.Rotation())
sketch4.addGeometry(Part.Circle(V(-38, 19.5, 0), V(0, 0, 1), 2.1), False)
sketch4.addGeometry(Part.Circle(V(0, 45.5, 0), V(0, 0, 1), 2.1), False)
sketch4.addGeometry(Part.Circle(V(38, 19.5, 0), V(0, 0, 1), 2.1), False)
sketch4.addGeometry(Part.Circle(V(38, -19.5, 0), V(0, 0, 1), 2.1), False)
sketch4.addGeometry(Part.Circle(V(0, -45.5, 0), V(0, 0, 1), 2.1), False)
sketch4.addGeometry(Part.Circle(V(-38, -19.5, 0), V(0, 0, 1), 2.1), False)
sketch4.addConstraint(Sketcher.Constraint("Equal", 0, 1))
sketch4.addConstraint(Sketcher.Constraint("Equal", 1, 2))
sketch4.addConstraint(Sketcher.Constraint("Equal", 2, 3))
sketch4.addConstraint(Sketcher.Constraint("Equal", 3, 4))
sketch4.addConstraint(Sketcher.Constraint("Equal", 4, 5))
sketch4.addConstraint(Sketcher.Constraint("Symmetric", 0, 3, 3, 3, -1, 1))
sketch4.addConstraint(Sketcher.Constraint("Symmetric", 1, 3, 4, 3, -1, 1))
sketch4.addConstraint(Sketcher.Constraint("Symmetric", 2, 3, 5, 3, -1, 1))
sketch4.addConstraint(Sketcher.Constraint("Symmetric", 0, 3, 2, 3, -2))
sketch4.addConstraint(Sketcher.Constraint("PointOnObject", 1, 3, -2))
sketch4.addConstraint(Sketcher.Constraint("Diameter", 0, 4.2))
sketch4.addConstraint(Sketcher.Constraint("DistanceX", 0, 3, -1, 1, 38.0))
sketch4.addConstraint(Sketcher.Constraint("DistanceY", 0, 3, 1, 3, 26.0))
sketch4.addConstraint(Sketcher.Constraint("DistanceY", 3, 3, 2, 3, 39.0))
doc.recompute()
hole = body.newObject("PartDesign::Hole", "Hole")
hole.Profile = sketch4
hole.ThreadType = "None"
hole.Diameter = 4.2
hole.DepthType = "Dimension"
hole.Depth = 40
hole.DrillPoint = "Angled"
hole.DrillPointAngle = 118
doc.recompute()

fillet = body.newObject("PartDesign::Fillet", "Fillet")
fillet.Base = (hole, edges_at(hole, [
    (31.033, 0, 48.3),
    (27.07, 34.57, 48.3),
    (0, 38.533, 48.3),
    (-27.07, 34.57, 48.3),
    (-31.033, 0, 48.3),
    (-27.07, -34.57, 48.3),
    (0, -38.533, 48.3),
    (27.07, -34.57, 48.3),
    (-25.09, 32.59, 48.3),
    (0, 35.733, 48.3),
    (25.09, 32.59, 48.3),
    (28.233, 0, 48.3),
    (25.09, -32.59, 48.3),
    (0, -35.733, 48.3),
    (-25.09, -32.59, 48.3),
    (-28.233, 0, 48.3),
    (24.053, 31.553, 48.3),
    (0, 34.267, 48.3),
    (-24.053, 31.553, 48.3),
    (-26.767, 0, 48.3),
    (-24.053, -31.553, 48.3),
    (0, -34.267, 48.3),
    (24.053, -31.553, 48.3),
    (26.767, 0, 48.3),
    (-22.073, 29.573, 48.3),
    (0, 31.467, 48.3),
    (22.073, 29.573, 48.3),
    (23.967, 0, 48.3),
    (22.073, -29.573, 48.3),
    (0, -31.467, 48.3),
    (-22.073, -29.573, 48.3),
    (-23.967, 0, 48.3),
]))
fillet.Radius = 0.3

# Sketch on XY plane
sketch5 = body.newObject("Sketcher::SketchObject", "Sketch004")
sketch5.AttachmentSupport = (doc.getObject("XY_Plane"), [""])
sketch5.MapMode = "FlatFace"
sketch5.AttachmentOffset = App.Placement(V(0, 0, 7.5), App.Rotation())
sketch5.addGeometry(Part.Circle(V(0, 15, 0), V(0, 0, 1), 7), False)
sketch5.addConstraint(Sketcher.Constraint("PointOnObject", 0, 3, -2))
sketch5.addConstraint(Sketcher.Constraint("Diameter", 0, 14.0))
sketch5.addConstraint(Sketcher.Constraint("DistanceY", -1, 1, 0, 3, 15.0))
pad3 = body.newObject("PartDesign::Pad", "Pad002")
pad3.Profile = sketch5
pad3.Length = 25

# Sketch on XY plane
sketch6 = body.newObject("Sketcher::SketchObject", "Sketch005")
sketch6.AttachmentSupport = (doc.getObject("XY_Plane"), [""])
sketch6.MapMode = "FlatFace"
sketch6.addGeometry(Part.Circle(V(0, 15, 0), V(0, 0, 1), 4), False)
sketch6.addConstraint(Sketcher.Constraint("PointOnObject", 0, 3, -2))
sketch6.addConstraint(Sketcher.Constraint("Diameter", 0, 8.0))
sketch6.addConstraint(Sketcher.Constraint("DistanceY", -1, 1, 0, 3, 15.0))
pocket2 = body.newObject("PartDesign::Pocket", "Pocket001")
pocket2.Profile = sketch6
pocket2.Length = 27.5
pocket2.Reversed = True

# Sketch on XY plane
sketch7 = body.newObject("Sketcher::SketchObject", "Sketch006")
sketch7.AttachmentSupport = (doc.getObject("XY_Plane"), [""])
sketch7.MapMode = "FlatFace"
sketch7.addGeometry(Part.Circle(V(0, -15, 0), V(0, 0, 1), 6), False)
sketch7.addConstraint(Sketcher.Constraint("PointOnObject", 0, 3, -2))
sketch7.addConstraint(Sketcher.Constraint("Diameter", 0, 12.6))
sketch7.addConstraint(Sketcher.Constraint("DistanceY", 0, 3, -1, 1, 15.0))
doc.recompute()
hole2 = body.newObject("PartDesign::Hole", "Hole001")
hole2.Profile = sketch7
hole2.ThreadType = "None"
hole2.Diameter = 12.6
hole2.DepthType = "Dimension"
hole2.Depth = 40.6
hole2.DrillPoint = "Angled"
hole2.DrillPointAngle = 118
hole2.Reversed = True

# Sketch on XY plane
sketch8 = body.newObject("Sketcher::SketchObject", "Sketch007")
sketch8.AttachmentSupport = (doc.getObject("XY_Plane"), [""])
sketch8.MapMode = "FlatFace"
sketch8.addGeometry(Part.Circle(V(0, -15, 0), V(0, 0, 1), 12), False)
sketch8.addGeometry(Part.Circle(V(0, -15, 0), V(0, 0, 1), 9), False)
sketch8.addConstraint(Sketcher.Constraint("Coincident", 1, 3, 0, 3))
sketch8.addConstraint(Sketcher.Constraint("PointOnObject", 0, 3, -2))
sketch8.addConstraint(Sketcher.Constraint("Diameter", 0, 25.0))
sketch8.addConstraint(Sketcher.Constraint("Diameter", 1, 18.0))
sketch8.addConstraint(Sketcher.Constraint("DistanceY", 0, 3, -1, 1, 15.0))
pocket3 = body.newObject("PartDesign::Pocket", "Pocket002")
pocket3.Profile = sketch8
pocket3.Length = 2.1
pocket3.Reversed = True
doc.recompute()

fillet2 = body.newObject("PartDesign::Fillet", "Fillet001")
fillet2.Base = (pocket3, edges_at(pocket3, [(-12.5, -15, 2.1), (-9, -15, 2.1)]))
fillet2.Radius = 0.5

doc.recompute()
